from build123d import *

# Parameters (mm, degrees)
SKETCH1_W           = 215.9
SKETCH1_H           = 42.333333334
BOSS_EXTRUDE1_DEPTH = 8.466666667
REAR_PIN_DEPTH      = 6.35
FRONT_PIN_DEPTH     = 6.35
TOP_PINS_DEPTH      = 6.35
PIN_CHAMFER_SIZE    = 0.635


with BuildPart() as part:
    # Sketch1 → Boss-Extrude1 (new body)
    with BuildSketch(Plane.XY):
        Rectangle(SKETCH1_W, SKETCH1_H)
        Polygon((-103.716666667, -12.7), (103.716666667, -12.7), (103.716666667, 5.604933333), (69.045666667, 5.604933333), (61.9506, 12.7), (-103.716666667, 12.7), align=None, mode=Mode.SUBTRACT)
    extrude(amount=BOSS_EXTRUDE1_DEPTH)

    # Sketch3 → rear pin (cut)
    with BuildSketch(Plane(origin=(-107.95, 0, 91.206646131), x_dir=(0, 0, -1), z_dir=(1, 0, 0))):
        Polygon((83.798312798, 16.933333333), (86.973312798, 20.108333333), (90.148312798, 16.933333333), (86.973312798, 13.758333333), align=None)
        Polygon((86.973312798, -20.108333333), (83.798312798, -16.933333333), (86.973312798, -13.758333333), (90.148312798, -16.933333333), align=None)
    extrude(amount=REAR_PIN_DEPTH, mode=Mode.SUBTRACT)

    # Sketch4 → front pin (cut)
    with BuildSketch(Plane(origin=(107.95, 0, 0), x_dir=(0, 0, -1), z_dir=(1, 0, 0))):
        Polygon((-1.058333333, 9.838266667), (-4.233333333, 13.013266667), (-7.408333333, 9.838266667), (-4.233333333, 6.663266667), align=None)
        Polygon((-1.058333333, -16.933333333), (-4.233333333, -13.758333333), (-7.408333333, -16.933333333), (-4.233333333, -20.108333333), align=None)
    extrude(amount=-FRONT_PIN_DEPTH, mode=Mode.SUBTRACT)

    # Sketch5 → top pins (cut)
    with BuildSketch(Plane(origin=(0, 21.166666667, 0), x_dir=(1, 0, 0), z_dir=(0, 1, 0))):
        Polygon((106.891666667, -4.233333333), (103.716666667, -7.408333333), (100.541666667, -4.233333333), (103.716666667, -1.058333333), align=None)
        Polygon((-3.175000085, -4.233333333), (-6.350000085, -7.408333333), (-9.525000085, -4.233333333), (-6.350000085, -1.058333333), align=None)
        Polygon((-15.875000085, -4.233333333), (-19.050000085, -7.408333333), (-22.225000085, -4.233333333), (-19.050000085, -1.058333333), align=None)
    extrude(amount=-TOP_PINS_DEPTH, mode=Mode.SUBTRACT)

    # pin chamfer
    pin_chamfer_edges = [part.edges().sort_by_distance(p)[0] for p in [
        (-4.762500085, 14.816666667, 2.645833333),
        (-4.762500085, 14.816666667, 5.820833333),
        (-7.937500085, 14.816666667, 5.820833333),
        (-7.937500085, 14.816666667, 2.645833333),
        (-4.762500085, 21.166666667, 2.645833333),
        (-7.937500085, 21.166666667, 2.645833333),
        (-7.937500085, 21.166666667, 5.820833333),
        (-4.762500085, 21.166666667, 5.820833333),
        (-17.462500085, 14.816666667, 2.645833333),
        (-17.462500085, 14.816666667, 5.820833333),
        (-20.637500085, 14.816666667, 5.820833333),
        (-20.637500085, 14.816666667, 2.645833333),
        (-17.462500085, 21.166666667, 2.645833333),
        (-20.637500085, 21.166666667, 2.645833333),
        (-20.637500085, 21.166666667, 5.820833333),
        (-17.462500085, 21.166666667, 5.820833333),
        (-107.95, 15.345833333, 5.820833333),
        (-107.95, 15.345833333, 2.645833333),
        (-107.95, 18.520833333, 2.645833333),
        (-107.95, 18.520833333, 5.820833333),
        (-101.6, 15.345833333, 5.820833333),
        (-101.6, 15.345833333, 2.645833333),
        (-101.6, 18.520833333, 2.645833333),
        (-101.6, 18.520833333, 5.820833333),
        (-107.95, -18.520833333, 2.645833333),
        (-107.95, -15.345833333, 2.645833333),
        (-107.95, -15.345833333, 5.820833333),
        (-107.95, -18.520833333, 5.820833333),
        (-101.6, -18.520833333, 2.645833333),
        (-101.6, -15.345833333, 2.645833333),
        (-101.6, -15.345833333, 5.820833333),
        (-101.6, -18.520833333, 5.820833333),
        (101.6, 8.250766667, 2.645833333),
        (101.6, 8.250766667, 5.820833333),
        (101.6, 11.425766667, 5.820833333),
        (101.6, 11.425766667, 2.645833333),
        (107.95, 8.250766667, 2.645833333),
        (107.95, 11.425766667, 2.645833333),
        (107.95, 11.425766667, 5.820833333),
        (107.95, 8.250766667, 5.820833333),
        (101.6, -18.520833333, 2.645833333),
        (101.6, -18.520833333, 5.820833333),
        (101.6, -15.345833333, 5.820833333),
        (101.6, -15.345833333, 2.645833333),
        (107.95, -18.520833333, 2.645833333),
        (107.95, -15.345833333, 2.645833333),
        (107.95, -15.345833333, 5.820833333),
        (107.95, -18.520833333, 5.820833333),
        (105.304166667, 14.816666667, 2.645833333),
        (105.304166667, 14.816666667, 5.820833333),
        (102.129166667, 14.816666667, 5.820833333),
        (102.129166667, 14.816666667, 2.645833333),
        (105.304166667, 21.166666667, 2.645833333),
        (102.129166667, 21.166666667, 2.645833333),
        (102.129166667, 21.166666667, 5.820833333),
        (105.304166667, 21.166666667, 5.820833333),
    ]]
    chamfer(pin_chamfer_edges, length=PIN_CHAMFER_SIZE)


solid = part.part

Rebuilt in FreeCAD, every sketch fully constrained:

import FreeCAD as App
import Part
import Sketcher
Q = App.Units.Quantity


def edges_at(feature, points):
    """Names of the edges that pass closest to the given points."""
    edges = feature.Shape.Edges
    near = lambda p: min(range(len(edges)), key=lambda i: edges[i].distToShape(Part.Vertex(*p))[0])
    return sorted({f"Edge{near(p) + 1}" for p in points})


def add_polygon(sketch, points):
    """Adds a closed chain of lines whose ends are joined by coincident constraints."""
    first, n = sketch.GeometryCount, len(points)
    for a, b in zip(points, points[1:] + points[:1]):
        sketch.addGeometry(Part.LineSegment(App.Vector(*a, 0), App.Vector(*b, 0)), False)
    for i in range(n):
        sketch.addConstraint(Sketcher.Constraint("Coincident", first + i, 2, first + (i + 1) % n, 1))

doc = App.newDocument("Part")
body = doc.addObject("PartDesign::Body", "Body")

# Sketch on XY plane
sketch1 = body.newObject("Sketcher::SketchObject", "Sketch")
sketch1.AttachmentSupport = (doc.getObject("XY_Plane"), [""])
sketch1.MapMode = "FlatFace"
add_polygon(sketch1, [(-107.95, 21.166667), (-107.95, -21.166667), (107.95, -21.166667), (107.95, 21.166667)])  # lines 0-3
add_polygon(sketch1, [(103.716667, -12.7), (-103.716667, -12.7), (-103.716667, 12.7), (61.9506, 12.7), (69.045667, 5.604933), (103.716667, 5.604933)])  # lines 4-9
sketch1.addConstraint(Sketcher.Constraint("Vertical", 0))
sketch1.addConstraint(Sketcher.Constraint("Horizontal", 1))
sketch1.addConstraint(Sketcher.Constraint("Vertical", 2))
sketch1.addConstraint(Sketcher.Constraint("Horizontal", 3))
sketch1.addConstraint(Sketcher.Constraint("Horizontal", 4))
sketch1.addConstraint(Sketcher.Constraint("Vertical", 5))
sketch1.addConstraint(Sketcher.Constraint("Horizontal", 6))
sketch1.addConstraint(Sketcher.Constraint("Horizontal", 8))
sketch1.addConstraint(Sketcher.Constraint("Vertical", 9))
sketch1.addConstraint(Sketcher.Constraint("Symmetric", 0, 2, 2, 2, -1, 1))
sketch1.addConstraint(Sketcher.Constraint("Symmetric", 5, 2, 9, 2, -1, 1))
sketch1.addConstraint(Sketcher.Constraint("DistanceY", 5, 1, 5, 2, Q("1 in")))
sketch1.addConstraint(Sketcher.Constraint("DistanceX", 1, 1, 1, 2, Q("8.5 in")))
sketch1.addConstraint(Sketcher.Constraint("Angle", 7, Q("-45 deg")))
sketch1.addConstraint(Sketcher.Constraint("DistanceX", 8, 1, 8, 2, Q("1.365 in")))
sketch1.addConstraint(Sketcher.Constraint("DistanceX", -1, 1, 6, 2, Q("2.439 in")))
sketch1.addConstraint(Sketcher.Constraint("DistanceY", 1, 2, 7, 2, Q("1.054 in")))
sketch1.addConstraint(Sketcher.Constraint("Distance", 7, Q("10.03394 mm")))
pad1 = body.newObject("PartDesign::Pad", "Pad")
pad1.Profile = sketch1
pad1.Length = 8.466667

# Sketch on YZ plane
sketch2 = body.newObject("Sketcher::SketchObject", "Sketch001")
sketch2.AttachmentSupport = (doc.getObject("YZ_Plane"), [""])
sketch2.MapMode = "FlatFace"
sketch2.AttachmentOffset = App.Placement(App.Vector(0, 0, -4.25 * 25.4), App.Rotation())
add_polygon(sketch2, [(20.108333, 4.233333), (16.933333, 7.408333), (13.758333, 4.233333), (16.933333, 1.058333)])  # lines 0-3
add_polygon(sketch2, [(-16.933333, 7.408333), (-20.108333, 4.233333), (-16.933333, 1.058333), (-13.758333, 4.233333)])  # lines 4-7
sketch2.addConstraint(Sketcher.Constraint("Symmetric", 3, 2, 4, 2, -2))
sketch2.addConstraint(Sketcher.Constraint("Symmetric", 2, 2, 5, 2, -2))
sketch2.addConstraint(Sketcher.Constraint("Symmetric", 1, 2, 6, 2, -2))
sketch2.addConstraint(Sketcher.Constraint("Symmetric", 0, 2, 7, 2, -2))
sketch2.addConstraint(Sketcher.Constraint("Perpendicular", 0, 1))
sketch2.addConstraint(Sketcher.Constraint("Perpendicular", 1, 2))
sketch2.addConstraint(Sketcher.Constraint("Perpendicular", 2, 3))
sketch2.addConstraint(Sketcher.Constraint("Parallel", 3, 4))
sketch2.addConstraint(Sketcher.Constraint("Horizontal", 1, 2, 3, 2))
sketch2.addConstraint(Sketcher.Constraint("DistanceY", 2, 2, 0, 2, Q("0.25 in")))
sketch2.addConstraint(Sketcher.Constraint("DistanceX", -1, 1, 0, 2, Q("16.933333 mm")))
sketch2.addConstraint(Sketcher.Constraint("DistanceY", -1, 1, 0, 2, Q("7.408333 mm")))
pocket1 = body.newObject("PartDesign::Pocket", "Pocket")
pocket1.Profile = sketch2
pocket1.Length = Q("0.25 in")
pocket1.Reversed = True

# Sketch on YZ plane
sketch3 = body.newObject("Sketcher::SketchObject", "Sketch002")
sketch3.AttachmentSupport = (doc.getObject("YZ_Plane"), [""])
sketch3.MapMode = "FlatFace"
sketch3.AttachmentOffset = App.Placement(App.Vector(0, 0, 4.25 * 25.4), App.Rotation())
add_polygon(sketch3, [(9.838267, 1.058333), (13.013267, 4.233333), (9.838267, 7.408333), (6.663267, 4.233333)])  # lines 0-3
add_polygon(sketch3, [(-16.933333, 1.058333), (-13.758333, 4.233333), (-16.933333, 7.408333), (-20.108333, 4.233333)])  # lines 4-7
sketch3.addConstraint(Sketcher.Constraint("Perpendicular", 0, 1))
sketch3.addConstraint(Sketcher.Constraint("Perpendicular", 1, 2))
sketch3.addConstraint(Sketcher.Constraint("Perpendicular", 2, 3))
sketch3.addConstraint(Sketcher.Constraint("Perpendicular", 3, 4))
sketch3.addConstraint(Sketcher.Constraint("Perpendicular", 4, 5))
sketch3.addConstraint(Sketcher.Constraint("Perpendicular", 5, 6))
sketch3.addConstraint(Sketcher.Constraint("Perpendicular", 6, 7))
sketch3.addConstraint(Sketcher.Constraint("Horizontal", 0, 2, 2, 2))
sketch3.addConstraint(Sketcher.Constraint("Horizontal", 2, 2, 4, 2))
sketch3.addConstraint(Sketcher.Constraint("Horizontal", 1, 2, 5, 2))
sketch3.addConstraint(Sketcher.Constraint("Horizontal", 4, 2, 6, 2))
sketch3.addConstraint(Sketcher.Constraint("Vertical", 1, 2, 3, 2))
sketch3.addConstraint(Sketcher.Constraint("DistanceX", 2, 2, 0, 2, Q("0.25 in")))
sketch3.addConstraint(Sketcher.Constraint("DistanceX", 4, 2, 2, 2, Q("0.804 in")))
sketch3.addConstraint(Sketcher.Constraint("DistanceX", -1, 1, 0, 2, Q("13.013267 mm")))
sketch3.addConstraint(Sketcher.Constraint("DistanceY", -1, 1, 0, 2, Q("4.233333 mm")))
pocket2 = body.newObject("PartDesign::Pocket", "Pocket001")
pocket2.Profile = sketch3
pocket2.Length = Q("0.25 in")

# Sketch on XZ plane
sketch4 = body.newObject("Sketcher::SketchObject", "Sketch003")
sketch4.AttachmentSupport = (doc.getObject("XZ_Plane"), [""])
sketch4.MapMode = "FlatFace"
sketch4.AttachmentOffset = App.Placement(App.Vector(0, 0, -21.166667), App.Rotation())
add_polygon(sketch4, [(103.716667, 7.408333), (106.891667, 4.233333), (103.716667, 1.058333), (100.541667, 4.233333)])  # lines 0-3
add_polygon(sketch4, [(-6.35, 7.408333), (-3.175, 4.233333), (-6.35, 1.058333), (-9.525, 4.233333)])  # lines 4-7
add_polygon(sketch4, [(-19.05, 7.408333), (-15.875, 4.233333), (-19.05, 1.058333), (-22.225, 4.233333)])  # lines 8-11
sketch4.addConstraint(Sketcher.Constraint("Perpendicular", 0, 1))
sketch4.addConstraint(Sketcher.Constraint("Perpendicular", 1, 2))
sketch4.addConstraint(Sketcher.Constraint("Perpendicular", 2, 3))
sketch4.addConstraint(Sketcher.Constraint("Perpendicular", 3, 4))
sketch4.addConstraint(Sketcher.Constraint("Perpendicular", 4, 5))
sketch4.addConstraint(Sketcher.Constraint("Perpendicular", 5, 6))
sketch4.addConstraint(Sketcher.Constraint("Perpendicular", 6, 7))
sketch4.addConstraint(Sketcher.Constraint("Perpendicular", 7, 8))
sketch4.addConstraint(Sketcher.Constraint("Perpendicular", 8, 9))
sketch4.addConstraint(Sketcher.Constraint("Perpendicular", 9, 10))
sketch4.addConstraint(Sketcher.Constraint("Perpendicular", 10, 11))
sketch4.addConstraint(Sketcher.Constraint("Horizontal", 0, 2, 2, 2))
sketch4.addConstraint(Sketcher.Constraint("Horizontal", 2, 2, 4, 2))
sketch4.addConstraint(Sketcher.Constraint("Horizontal", 1, 2, 5, 2))
sketch4.addConstraint(Sketcher.Constraint("Horizontal", 4, 2, 6, 2))
sketch4.addConstraint(Sketcher.Constraint("Horizontal", 6, 2, 8, 2))
sketch4.addConstraint(Sketcher.Constraint("Horizontal", 5, 2, 9, 2))
sketch4.addConstraint(Sketcher.Constraint("Horizontal", 8, 2, 10, 2))
sketch4.addConstraint(Sketcher.Constraint("Vertical", 1, 2, 3, 2))
sketch4.addConstraint(Sketcher.Constraint("DistanceX", 8, 2, 4, 2, Q("0.5 in")))
sketch4.addConstraint(Sketcher.Constraint("DistanceX", 5, 2, -1, 1, Q("0.25 in")))
sketch4.addConstraint(Sketcher.Constraint("DistanceX", 2, 2, 0, 2, Q("0.25 in")))
sketch4.addConstraint(Sketcher.Constraint("DistanceX", -1, 1, 0, 2, Q("106.891667 mm")))
sketch4.addConstraint(Sketcher.Constraint("DistanceY", -1, 1, 0, 2, Q("4.233333 mm")))
pocket3 = body.newObject("PartDesign::Pocket", "Pocket002")
pocket3.Profile = sketch4
pocket3.Length = Q("0.25 in")
pocket3.Reversed = True
doc.recompute()

chamfer = body.newObject("PartDesign::Chamfer", "Chamfer")
chamfer.Base = (pocket3, edges_at(pocket3, [
    (-4.763, 14.817, 2.646),
    (-4.763, 14.817, 5.821),
    (-7.938, 14.817, 5.821),
    (-7.938, 14.817, 2.646),
    (-4.763, 21.167, 2.646),
    (-7.938, 21.167, 2.646),
    (-7.938, 21.167, 5.821),
    (-4.763, 21.167, 5.821),
    (-17.463, 14.817, 2.646),
    (-17.463, 14.817, 5.821),
    (-20.638, 14.817, 5.821),
    (-20.638, 14.817, 2.646),
    (-17.463, 21.167, 2.646),
    (-20.638, 21.167, 2.646),
    (-20.638, 21.167, 5.821),
    (-17.463, 21.167, 5.821),
    (-107.95, 15.346, 5.821),
    (-107.95, 15.346, 2.646),
    (-107.95, 18.521, 2.646),
    (-107.95, 18.521, 5.821),
    (-101.6, 15.346, 5.821),
    (-101.6, 15.346, 2.646),
    (-101.6, 18.521, 2.646),
    (-101.6, 18.521, 5.821),
    (-107.95, -18.521, 2.646),
    (-107.95, -15.346, 2.646),
    (-107.95, -15.346, 5.821),
    (-107.95, -18.521, 5.821),
    (-101.6, -18.521, 2.646),
    (-101.6, -15.346, 2.646),
    (-101.6, -15.346, 5.821),
    (-101.6, -18.521, 5.821),
    (101.6, 8.251, 2.646),
    (101.6, 8.251, 5.821),
    (101.6, 11.426, 5.821),
    (101.6, 11.426, 2.646),
    (107.95, 8.251, 2.646),
    (107.95, 11.426, 2.646),
    (107.95, 11.426, 5.821),
    (107.95, 8.251, 5.821),
    (101.6, -18.521, 2.646),
    (101.6, -18.521, 5.821),
    (101.6, -15.346, 5.821),
    (101.6, -15.346, 2.646),
    (107.95, -18.521, 2.646),
    (107.95, -15.346, 2.646),
    (107.95, -15.346, 5.821),
    (107.95, -18.521, 5.821),
    (105.304, 14.817, 2.646),
    (105.304, 14.817, 5.821),
    (102.129, 14.817, 5.821),
    (102.129, 14.817, 2.646),
    (105.304, 21.167, 2.646),
    (102.129, 21.167, 2.646),
    (102.129, 21.167, 5.821),
    (105.304, 21.167, 5.821),
]))
chamfer.Size = Q("0.025 in")

doc.recompute()
